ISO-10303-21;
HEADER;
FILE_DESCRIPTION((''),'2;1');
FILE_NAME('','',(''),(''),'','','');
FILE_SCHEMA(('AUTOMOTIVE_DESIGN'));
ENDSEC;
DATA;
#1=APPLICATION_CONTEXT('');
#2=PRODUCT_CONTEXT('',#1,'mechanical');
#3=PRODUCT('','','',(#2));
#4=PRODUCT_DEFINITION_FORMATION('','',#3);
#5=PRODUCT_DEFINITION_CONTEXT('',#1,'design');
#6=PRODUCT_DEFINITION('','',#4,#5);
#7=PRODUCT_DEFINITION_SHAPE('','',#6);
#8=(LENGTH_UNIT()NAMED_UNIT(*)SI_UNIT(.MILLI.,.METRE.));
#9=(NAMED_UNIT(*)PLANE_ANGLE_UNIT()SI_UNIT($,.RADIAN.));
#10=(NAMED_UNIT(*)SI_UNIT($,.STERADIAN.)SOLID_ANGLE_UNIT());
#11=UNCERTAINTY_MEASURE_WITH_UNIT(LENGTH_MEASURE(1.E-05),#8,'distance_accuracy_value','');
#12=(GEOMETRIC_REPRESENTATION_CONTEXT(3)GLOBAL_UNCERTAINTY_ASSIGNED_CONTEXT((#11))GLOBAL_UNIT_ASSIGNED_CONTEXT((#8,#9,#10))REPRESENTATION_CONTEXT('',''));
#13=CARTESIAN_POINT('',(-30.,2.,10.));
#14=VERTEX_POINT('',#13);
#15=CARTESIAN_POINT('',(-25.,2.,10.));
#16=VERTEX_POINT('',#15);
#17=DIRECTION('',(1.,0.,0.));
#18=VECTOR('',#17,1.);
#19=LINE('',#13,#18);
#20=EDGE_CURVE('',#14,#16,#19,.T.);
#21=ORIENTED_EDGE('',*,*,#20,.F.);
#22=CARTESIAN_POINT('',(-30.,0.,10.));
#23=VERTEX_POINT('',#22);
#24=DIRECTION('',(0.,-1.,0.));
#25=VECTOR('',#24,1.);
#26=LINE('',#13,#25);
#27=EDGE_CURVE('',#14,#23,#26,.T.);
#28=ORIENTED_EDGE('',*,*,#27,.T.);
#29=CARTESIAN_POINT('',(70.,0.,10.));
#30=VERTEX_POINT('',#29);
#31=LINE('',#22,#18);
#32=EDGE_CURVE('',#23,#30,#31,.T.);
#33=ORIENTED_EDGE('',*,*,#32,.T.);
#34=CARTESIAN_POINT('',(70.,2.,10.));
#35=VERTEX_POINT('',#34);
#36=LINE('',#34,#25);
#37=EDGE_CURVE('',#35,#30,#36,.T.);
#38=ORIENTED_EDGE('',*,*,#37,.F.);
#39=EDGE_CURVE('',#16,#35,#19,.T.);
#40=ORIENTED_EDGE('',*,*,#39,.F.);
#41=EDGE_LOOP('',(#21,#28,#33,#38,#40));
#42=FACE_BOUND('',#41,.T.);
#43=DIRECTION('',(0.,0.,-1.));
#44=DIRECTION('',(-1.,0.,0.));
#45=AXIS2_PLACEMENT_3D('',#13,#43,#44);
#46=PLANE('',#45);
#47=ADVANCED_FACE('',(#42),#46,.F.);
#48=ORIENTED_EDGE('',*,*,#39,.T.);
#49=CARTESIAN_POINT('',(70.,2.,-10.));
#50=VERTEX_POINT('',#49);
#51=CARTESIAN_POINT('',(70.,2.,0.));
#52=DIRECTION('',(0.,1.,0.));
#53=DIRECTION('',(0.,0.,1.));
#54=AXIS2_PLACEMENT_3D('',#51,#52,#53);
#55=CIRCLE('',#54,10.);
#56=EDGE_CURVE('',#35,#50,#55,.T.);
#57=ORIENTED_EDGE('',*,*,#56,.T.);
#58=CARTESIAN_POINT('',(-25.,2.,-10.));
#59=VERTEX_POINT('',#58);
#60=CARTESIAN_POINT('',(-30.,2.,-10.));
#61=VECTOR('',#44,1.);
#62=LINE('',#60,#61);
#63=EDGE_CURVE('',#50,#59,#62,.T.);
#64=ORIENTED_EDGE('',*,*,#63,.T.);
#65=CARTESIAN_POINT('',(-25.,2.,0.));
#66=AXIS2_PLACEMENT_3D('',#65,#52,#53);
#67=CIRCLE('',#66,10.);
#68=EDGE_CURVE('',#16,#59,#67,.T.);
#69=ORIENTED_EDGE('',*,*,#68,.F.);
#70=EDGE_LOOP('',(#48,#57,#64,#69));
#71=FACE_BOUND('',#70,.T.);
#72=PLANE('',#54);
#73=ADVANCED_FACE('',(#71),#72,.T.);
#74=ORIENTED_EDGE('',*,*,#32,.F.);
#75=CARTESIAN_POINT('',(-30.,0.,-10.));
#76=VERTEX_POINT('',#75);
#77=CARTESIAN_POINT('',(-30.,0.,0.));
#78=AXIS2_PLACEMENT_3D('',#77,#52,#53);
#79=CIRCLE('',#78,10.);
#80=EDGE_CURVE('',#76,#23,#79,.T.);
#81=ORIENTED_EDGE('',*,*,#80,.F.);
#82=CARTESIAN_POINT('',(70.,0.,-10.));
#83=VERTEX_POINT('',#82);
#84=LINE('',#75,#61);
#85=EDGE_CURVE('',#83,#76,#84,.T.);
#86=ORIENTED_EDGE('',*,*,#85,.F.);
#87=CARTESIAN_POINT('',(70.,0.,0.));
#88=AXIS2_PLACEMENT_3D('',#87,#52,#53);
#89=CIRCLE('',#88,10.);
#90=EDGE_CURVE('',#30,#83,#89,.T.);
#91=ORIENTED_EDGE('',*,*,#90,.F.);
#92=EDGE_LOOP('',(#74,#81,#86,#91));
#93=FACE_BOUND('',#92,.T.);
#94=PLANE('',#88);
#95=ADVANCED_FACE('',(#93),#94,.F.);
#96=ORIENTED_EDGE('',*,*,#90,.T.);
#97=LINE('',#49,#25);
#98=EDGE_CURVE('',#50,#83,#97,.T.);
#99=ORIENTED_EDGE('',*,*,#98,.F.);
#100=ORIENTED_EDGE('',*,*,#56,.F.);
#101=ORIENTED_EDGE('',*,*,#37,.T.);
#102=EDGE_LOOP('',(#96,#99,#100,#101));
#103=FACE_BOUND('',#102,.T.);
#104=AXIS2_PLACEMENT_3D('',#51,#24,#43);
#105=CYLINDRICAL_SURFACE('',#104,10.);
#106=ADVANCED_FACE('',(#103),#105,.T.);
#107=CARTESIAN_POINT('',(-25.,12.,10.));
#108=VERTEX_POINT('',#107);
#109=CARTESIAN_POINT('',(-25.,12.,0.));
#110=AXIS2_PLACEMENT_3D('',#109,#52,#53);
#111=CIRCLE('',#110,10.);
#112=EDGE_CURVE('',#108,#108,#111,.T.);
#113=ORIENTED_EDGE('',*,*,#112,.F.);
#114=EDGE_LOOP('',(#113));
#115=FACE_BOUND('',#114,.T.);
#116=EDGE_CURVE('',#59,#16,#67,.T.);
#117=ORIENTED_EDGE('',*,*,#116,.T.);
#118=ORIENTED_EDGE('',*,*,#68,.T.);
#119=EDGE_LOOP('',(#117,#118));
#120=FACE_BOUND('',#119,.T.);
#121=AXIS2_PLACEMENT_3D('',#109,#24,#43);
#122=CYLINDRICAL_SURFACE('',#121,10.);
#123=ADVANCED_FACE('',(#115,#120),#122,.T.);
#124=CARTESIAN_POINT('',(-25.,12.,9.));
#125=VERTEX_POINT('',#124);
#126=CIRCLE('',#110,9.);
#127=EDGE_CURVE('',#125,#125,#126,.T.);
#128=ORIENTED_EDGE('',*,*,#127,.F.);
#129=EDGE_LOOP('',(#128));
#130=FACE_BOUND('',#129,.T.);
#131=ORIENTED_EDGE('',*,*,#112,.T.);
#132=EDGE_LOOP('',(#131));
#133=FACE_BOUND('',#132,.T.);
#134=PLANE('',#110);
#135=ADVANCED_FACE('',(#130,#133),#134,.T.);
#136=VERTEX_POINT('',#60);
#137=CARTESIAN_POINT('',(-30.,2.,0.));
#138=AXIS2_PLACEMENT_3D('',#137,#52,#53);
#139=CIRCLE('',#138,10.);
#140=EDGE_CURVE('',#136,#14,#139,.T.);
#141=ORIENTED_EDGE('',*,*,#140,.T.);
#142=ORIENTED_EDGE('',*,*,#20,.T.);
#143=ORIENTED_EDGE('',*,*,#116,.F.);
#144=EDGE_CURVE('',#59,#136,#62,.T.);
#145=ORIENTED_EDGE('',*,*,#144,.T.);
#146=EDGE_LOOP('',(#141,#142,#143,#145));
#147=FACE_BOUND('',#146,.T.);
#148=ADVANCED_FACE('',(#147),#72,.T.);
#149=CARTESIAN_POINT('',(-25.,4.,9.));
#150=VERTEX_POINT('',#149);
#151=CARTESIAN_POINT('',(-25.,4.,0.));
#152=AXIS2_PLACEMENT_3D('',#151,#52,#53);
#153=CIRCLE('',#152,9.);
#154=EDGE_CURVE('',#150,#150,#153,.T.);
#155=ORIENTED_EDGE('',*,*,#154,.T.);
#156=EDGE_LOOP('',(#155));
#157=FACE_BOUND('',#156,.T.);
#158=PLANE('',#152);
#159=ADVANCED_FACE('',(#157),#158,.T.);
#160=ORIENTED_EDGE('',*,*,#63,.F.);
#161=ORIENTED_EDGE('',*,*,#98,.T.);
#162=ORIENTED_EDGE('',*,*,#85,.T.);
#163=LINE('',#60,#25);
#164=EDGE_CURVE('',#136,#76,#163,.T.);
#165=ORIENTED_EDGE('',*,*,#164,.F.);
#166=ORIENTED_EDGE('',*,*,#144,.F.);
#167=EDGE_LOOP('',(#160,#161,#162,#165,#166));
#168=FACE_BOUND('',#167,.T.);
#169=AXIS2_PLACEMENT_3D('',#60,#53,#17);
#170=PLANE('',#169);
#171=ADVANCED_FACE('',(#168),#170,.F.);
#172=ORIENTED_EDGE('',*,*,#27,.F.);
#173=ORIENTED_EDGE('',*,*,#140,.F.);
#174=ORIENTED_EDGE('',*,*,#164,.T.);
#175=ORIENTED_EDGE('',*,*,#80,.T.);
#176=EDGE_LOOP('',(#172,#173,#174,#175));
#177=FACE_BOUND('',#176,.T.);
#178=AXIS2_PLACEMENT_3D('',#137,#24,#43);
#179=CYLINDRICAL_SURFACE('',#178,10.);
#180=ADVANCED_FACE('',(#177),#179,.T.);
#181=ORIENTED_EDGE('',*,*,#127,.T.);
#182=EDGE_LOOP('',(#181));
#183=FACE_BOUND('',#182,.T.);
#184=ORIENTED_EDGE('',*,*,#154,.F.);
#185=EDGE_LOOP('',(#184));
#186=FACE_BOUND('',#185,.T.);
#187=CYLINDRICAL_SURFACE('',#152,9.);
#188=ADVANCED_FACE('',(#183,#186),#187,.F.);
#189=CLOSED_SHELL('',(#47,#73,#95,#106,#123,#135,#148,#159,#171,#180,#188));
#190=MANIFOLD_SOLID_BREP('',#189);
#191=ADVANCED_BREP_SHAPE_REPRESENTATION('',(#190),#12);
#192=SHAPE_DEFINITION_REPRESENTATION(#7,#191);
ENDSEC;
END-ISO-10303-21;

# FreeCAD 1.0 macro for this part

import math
import FreeCAD as App
import Part
import Sketcher
from FreeCAD import Vector

doc = App.newDocument("Part")
body = doc.addObject("PartDesign::Body", "Body")

# Sketch on XZ plane
sketch1 = body.newObject("Sketcher::SketchObject", "Sketch")
sketch1.AttachmentSupport = (doc.getObject("XZ_Plane"), [""])
sketch1.MapMode = "FlatFace"
sketch1.addGeometry(Part.LineSegment(Vector(-30, 10, 0), Vector(70, 10, 0)), False)
sketch1.addGeometry(Part.ArcOfCircle(Part.Circle(Vector(70, 0, 0), Vector(0, 0, 1), 10), math.radians(-90), math.radians(90)), False)
sketch1.addGeometry(Part.LineSegment(Vector(70, -10, 0), Vector(-30, -10, 0)), False)
sketch1.addGeometry(Part.ArcOfCircle(Part.Circle(Vector(-30, 0, 0), Vector(0, 0, 1), 10), math.radians(90), math.radians(270)), False)
sketch1.addConstraint(Sketcher.Constraint("Tangent", 0, 2, 1, 2))
sketch1.addConstraint(Sketcher.Constraint("Tangent", 1, 1, 2, 1))
sketch1.addConstraint(Sketcher.Constraint("Tangent", 2, 2, 3, 2))
sketch1.addConstraint(Sketcher.Constraint("Tangent", 3, 1, 0, 1))
sketch1.addConstraint(Sketcher.Constraint("Horizontal", 0))
sketch1.addConstraint(Sketcher.Constraint("Horizontal", 2))
sketch1.addConstraint(Sketcher.Constraint("PointOnObject", 1, 3, -1))
sketch1.addConstraint(Sketcher.Constraint("Radius", 1, 10.0))
sketch1.addConstraint(Sketcher.Constraint("DistanceX", 0, 1, 0, 2, 100.0))
sketch1.addConstraint(Sketcher.Constraint("DistanceX", -1, 1, 1, 3, 70.0))
pad1 = body.newObject("PartDesign::Pad", "Pad")
pad1.Profile = sketch1
pad1.Length = 2
pad1.Reversed = True

# Sketch on XZ plane
sketch2 = body.newObject("Sketcher::SketchObject", "Sketch001")
sketch2.AttachmentSupport = (doc.getObject("XZ_Plane"), [""])
sketch2.MapMode = "FlatFace"
sketch2.AttachmentOffset = App.Placement(Vector(0, 0, -2), App.Rotation())
sketch2.addGeometry(Part.Circle(Vector(-25, 0, 0), Vector(0, 0, 1), 10), False)
sketch2.addConstraint(Sketcher.Constraint("PointOnObject", 0, 3, -1))
sketch2.addConstraint(Sketcher.Constraint("Diameter", 0, 20.0))
sketch2.addConstraint(Sketcher.Constraint("DistanceX", 0, 3, -1, 1, 25.0))
pad2 = body.newObject("PartDesign::Pad", "Pad001")
pad2.Profile = sketch2
pad2.Length = 10
pad2.Reversed = True

# Sketch on XZ plane
sketch3 = body.newObject("Sketcher::SketchObject", "Sketch002")
sketch3.AttachmentSupport = (doc.getObject("XZ_Plane"), [""])
sketch3.MapMode = "FlatFace"
sketch3.AttachmentOffset = App.Placement(Vector(0, 0, -12), App.Rotation())
sketch3.addGeometry(Part.Circle(Vector(-25, 0, 0), Vector(0, 0, 1), 9), False)
sketch3.addConstraint(Sketcher.Constraint("PointOnObject", 0, 3, -1))
sketch3.addConstraint(Sketcher.Constraint("Diameter", 0, 18.0))
sketch3.addConstraint(Sketcher.Constraint("DistanceX", 0, 3, -1, 1, 25.0))
pocket1 = body.newObject("PartDesign::Pocket", "Pocket")
pocket1.Profile = sketch3
pocket1.Length = 8
pocket1.Reversed = True

doc.recompute()
